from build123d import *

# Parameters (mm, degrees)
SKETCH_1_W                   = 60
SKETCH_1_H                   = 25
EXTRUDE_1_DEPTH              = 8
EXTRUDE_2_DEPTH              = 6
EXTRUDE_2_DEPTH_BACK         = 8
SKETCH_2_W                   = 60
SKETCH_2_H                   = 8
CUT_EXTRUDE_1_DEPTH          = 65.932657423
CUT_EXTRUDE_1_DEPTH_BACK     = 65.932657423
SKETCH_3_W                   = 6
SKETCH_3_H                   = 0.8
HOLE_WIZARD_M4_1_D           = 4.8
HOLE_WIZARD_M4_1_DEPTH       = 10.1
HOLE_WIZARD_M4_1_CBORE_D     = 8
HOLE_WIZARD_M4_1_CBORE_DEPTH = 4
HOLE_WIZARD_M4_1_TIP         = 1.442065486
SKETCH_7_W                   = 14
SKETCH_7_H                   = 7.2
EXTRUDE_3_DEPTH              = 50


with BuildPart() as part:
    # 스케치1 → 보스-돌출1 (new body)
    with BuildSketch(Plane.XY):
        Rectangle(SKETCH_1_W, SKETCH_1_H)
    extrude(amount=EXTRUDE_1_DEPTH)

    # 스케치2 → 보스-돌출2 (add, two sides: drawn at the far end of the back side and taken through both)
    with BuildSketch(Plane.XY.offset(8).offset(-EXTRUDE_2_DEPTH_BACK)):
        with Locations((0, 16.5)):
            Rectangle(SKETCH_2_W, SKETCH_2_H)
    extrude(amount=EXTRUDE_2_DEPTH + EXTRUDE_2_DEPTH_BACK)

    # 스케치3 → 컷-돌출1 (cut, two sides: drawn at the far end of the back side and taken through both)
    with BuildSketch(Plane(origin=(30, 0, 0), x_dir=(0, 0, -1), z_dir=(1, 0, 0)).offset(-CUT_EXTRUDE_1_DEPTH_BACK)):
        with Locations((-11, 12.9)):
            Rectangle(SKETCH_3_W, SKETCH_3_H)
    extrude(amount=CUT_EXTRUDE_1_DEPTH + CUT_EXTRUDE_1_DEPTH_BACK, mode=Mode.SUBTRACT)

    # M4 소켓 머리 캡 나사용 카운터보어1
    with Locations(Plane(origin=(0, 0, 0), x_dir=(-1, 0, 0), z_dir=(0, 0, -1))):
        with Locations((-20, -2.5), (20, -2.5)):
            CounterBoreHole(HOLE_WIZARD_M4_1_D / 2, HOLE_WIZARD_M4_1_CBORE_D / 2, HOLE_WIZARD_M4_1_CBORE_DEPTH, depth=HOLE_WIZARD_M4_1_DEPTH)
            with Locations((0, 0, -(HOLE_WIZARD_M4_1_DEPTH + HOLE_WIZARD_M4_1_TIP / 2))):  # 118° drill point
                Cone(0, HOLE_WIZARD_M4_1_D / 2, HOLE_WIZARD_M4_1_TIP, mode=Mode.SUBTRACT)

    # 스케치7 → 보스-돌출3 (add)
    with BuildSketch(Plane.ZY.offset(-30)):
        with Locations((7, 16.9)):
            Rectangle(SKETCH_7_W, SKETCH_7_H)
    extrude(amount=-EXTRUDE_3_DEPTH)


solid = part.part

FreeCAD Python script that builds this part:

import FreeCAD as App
import Part
import Sketcher


def add_polygon(sketch, points):
    """Adds a closed chain of lines whose ends are joined by coincident constraints."""
    first, n = sketch.GeometryCount, len(points)
    for a, b in zip(points, points[1:] + points[:1]):
        sketch.addGeometry(Part.LineSegment(App.Vector(*a, 0), App.Vector(*b, 0)), False)
    for i in range(n):
        sketch.addConstraint(Sketcher.Constraint("Coincident", first + i, 2, first + (i + 1) % n, 1))

doc = App.newDocument("Part")
body = doc.addObject("PartDesign::Body", "Body")

sketch1 = doc.addObject("Sketcher::SketchObject", "Sketch")
body.addObject(sketch1)
sketch1.AttachmentSupport = (doc.XY_Plane, [""])
sketch1.MapMode = "FlatFace"
add_polygon(sketch1, [(-30, 12.5), (-30, -12.5), (30, -12.5), (30, 12.5)])
sketch1.addConstraint(Sketcher.Constraint("Vertical", 0))
sketch1.addConstraint(Sketcher.Constraint("Horizontal", 1))
sketch1.addConstraint(Sketcher.Constraint("Vertical", 2))
sketch1.addConstraint(Sketcher.Constraint("Horizontal", 3))
sketch1.addConstraint(Sketcher.Constraint("Symmetric", 0, 2, 2, 2, -1, 1))
sketch1.addConstraint(Sketcher.Constraint("DistanceX", 1, 1, 1, 2, 60.0))
sketch1.addConstraint(Sketcher.Constraint("DistanceY", 0, 2, 0, 1, 25.0))
pad1 = doc.addObject("PartDesign::Pad", "Pad")
body.addObject(pad1)
pad1.Profile = sketch1
pad1.Length = 8

sketch2 = doc.addObject("Sketcher::SketchObject", "Sketch001")
body.addObject(sketch2)
sketch2.AttachmentSupport = (doc.XY_Plane, [""])
sketch2.MapMode = "FlatFace"
sketch2.AttachmentOffset = App.Placement(App.Vector(0, 0, 8), App.Rotation())
add_polygon(sketch2, [(-30, 20.5), (-30, 12.5), (30, 12.5), (30, 20.5)])
sketch2.addConstraint(Sketcher.Constraint("Vertical", 0))
sketch2.addConstraint(Sketcher.Constraint("Horizontal", 1))
sketch2.addConstraint(Sketcher.Constraint("Vertical", 2))
sketch2.addConstraint(Sketcher.Constraint("Horizontal", 3))
sketch2.addConstraint(Sketcher.Constraint("DistanceX", 1, 1, 1, 2, 60.0))
sketch2.addConstraint(Sketcher.Constraint("DistanceY", 0, 2, 0, 1, 8.0))
sketch2.addConstraint(Sketcher.Constraint("DistanceX", 0, 2, -1, 1, 30.0))
sketch2.addConstraint(Sketcher.Constraint("DistanceY", -1, 1, 0, 2, 12.5))
pad2 = doc.addObject("PartDesign::Pad", "Pad001")
body.addObject(pad2)
pad2.Profile = sketch2
pad2.Type = "TwoLengths"
pad2.Length = 6
pad2.Length2 = 8

sketch3 = doc.addObject("Sketcher::SketchObject", "Sketch002")
body.addObject(sketch3)
sketch3.AttachmentSupport = (doc.YZ_Plane, [""])
sketch3.MapMode = "FlatFace"
sketch3.AttachmentOffset = App.Placement(App.Vector(0, 0, 30), App.Rotation())
add_polygon(sketch3, [(13.3, 14), (12.5, 14), (12.5, 8), (13.3, 8)])
sketch3.addConstraint(Sketcher.Constraint("Horizontal", 0))
sketch3.addConstraint(Sketcher.Constraint("Vertical", 1))
sketch3.addConstraint(Sketcher.Constraint("Horizontal", 2))
sketch3.addConstraint(Sketcher.Constraint("Vertical", 3))
sketch3.addConstraint(Sketcher.Constraint("DistanceY", 1, 2, 1, 1, 6.0))
sketch3.addConstraint(Sketcher.Constraint("DistanceX", 0, 2, 0, 1, 0.8))
sketch3.addConstraint(Sketcher.Constraint("DistanceY", -1, 1, 0, 2, 14.0))
sketch3.addConstraint(Sketcher.Constraint("DistanceX", -1, 1, 0, 2, 12.5))
pocket1 = doc.addObject("PartDesign::Pocket", "Pocket")
body.addObject(pocket1)
pocket1.Profile = sketch3
pocket1.Type = "ThroughAll"
pocket1.Midplane = True

sketch4 = doc.addObject("Sketcher::SketchObject", "Sketch003")
body.addObject(sketch4)
sketch4.AttachmentSupport = (doc.XY_Plane, [""])
sketch4.MapMode = "FlatFace"
sketch4.addGeometry(Part.Circle(App.Vector(20, -2.5, 0), App.Vector(0, 0, 1), 2.4), False)
sketch4.addGeometry(Part.Circle(App.Vector(-20, -2.5, 0), App.Vector(0, 0, 1), 2.4), False)
sketch4.addConstraint(Sketcher.Constraint("Equal", 0, 1))
sketch4.addConstraint(Sketcher.Constraint("Symmetric", 0, 3, 1, 3, -2))
sketch4.addConstraint(Sketcher.Constraint("Diameter", 0, 4.8))
sketch4.addConstraint(Sketcher.Constraint("DistanceX", -1, 1, 0, 3, 20.0))
sketch4.addConstraint(Sketcher.Constraint("DistanceY", 0, 3, -1, 1, 2.5))
doc.recompute()
hole = doc.addObject("PartDesign::Hole", "Hole")
body.addObject(hole)
hole.Profile = sketch4
hole.ThreadType = "None"
hole.Diameter = 4.8
hole.DepthType = "Dimension"
hole.Depth = 10.1
hole.DrillPoint = "Angled"
hole.DrillPointAngle = 118
hole.HoleCutType = "Counterbore"
hole.HoleCutDiameter = 8
hole.HoleCutDepth = 4
hole.Reversed = True

sketch5 = doc.addObject("Sketcher::SketchObject", "Sketch004")
body.addObject(sketch5)
sketch5.AttachmentSupport = (doc.YZ_Plane, [""])
sketch5.MapMode = "FlatFace"
sketch5.AttachmentOffset = App.Placement(App.Vector(0, 0, 30), App.Rotation())
add_polygon(sketch5, [(20.5, 0), (13.3, 0), (13.3, 14), (20.5, 14)])
sketch5.addConstraint(Sketcher.Constraint("Horizontal", 0))
sketch5.addConstraint(Sketcher.Constraint("Vertical", 1))
sketch5.addConstraint(Sketcher.Constraint("Horizontal", 2))
sketch5.addConstraint(Sketcher.Constraint("Vertical", 3))
sketch5.addConstraint(Sketcher.Constraint("PointOnObject", 0, 2, -1))
sketch5.addConstraint(Sketcher.Constraint("DistanceY", 1, 1, 1, 2, 14.0))
sketch5.addConstraint(Sketcher.Constraint("DistanceX", 0, 2, 0, 1, 7.2))
sketch5.addConstraint(Sketcher.Constraint("DistanceX", -1, 1, 0, 2, 13.3))
pad3 = doc.addObject("PartDesign::Pad", "Pad002")
body.addObject(pad3)
pad3.Profile = sketch5
pad3.Length = 50

doc.recompute()
